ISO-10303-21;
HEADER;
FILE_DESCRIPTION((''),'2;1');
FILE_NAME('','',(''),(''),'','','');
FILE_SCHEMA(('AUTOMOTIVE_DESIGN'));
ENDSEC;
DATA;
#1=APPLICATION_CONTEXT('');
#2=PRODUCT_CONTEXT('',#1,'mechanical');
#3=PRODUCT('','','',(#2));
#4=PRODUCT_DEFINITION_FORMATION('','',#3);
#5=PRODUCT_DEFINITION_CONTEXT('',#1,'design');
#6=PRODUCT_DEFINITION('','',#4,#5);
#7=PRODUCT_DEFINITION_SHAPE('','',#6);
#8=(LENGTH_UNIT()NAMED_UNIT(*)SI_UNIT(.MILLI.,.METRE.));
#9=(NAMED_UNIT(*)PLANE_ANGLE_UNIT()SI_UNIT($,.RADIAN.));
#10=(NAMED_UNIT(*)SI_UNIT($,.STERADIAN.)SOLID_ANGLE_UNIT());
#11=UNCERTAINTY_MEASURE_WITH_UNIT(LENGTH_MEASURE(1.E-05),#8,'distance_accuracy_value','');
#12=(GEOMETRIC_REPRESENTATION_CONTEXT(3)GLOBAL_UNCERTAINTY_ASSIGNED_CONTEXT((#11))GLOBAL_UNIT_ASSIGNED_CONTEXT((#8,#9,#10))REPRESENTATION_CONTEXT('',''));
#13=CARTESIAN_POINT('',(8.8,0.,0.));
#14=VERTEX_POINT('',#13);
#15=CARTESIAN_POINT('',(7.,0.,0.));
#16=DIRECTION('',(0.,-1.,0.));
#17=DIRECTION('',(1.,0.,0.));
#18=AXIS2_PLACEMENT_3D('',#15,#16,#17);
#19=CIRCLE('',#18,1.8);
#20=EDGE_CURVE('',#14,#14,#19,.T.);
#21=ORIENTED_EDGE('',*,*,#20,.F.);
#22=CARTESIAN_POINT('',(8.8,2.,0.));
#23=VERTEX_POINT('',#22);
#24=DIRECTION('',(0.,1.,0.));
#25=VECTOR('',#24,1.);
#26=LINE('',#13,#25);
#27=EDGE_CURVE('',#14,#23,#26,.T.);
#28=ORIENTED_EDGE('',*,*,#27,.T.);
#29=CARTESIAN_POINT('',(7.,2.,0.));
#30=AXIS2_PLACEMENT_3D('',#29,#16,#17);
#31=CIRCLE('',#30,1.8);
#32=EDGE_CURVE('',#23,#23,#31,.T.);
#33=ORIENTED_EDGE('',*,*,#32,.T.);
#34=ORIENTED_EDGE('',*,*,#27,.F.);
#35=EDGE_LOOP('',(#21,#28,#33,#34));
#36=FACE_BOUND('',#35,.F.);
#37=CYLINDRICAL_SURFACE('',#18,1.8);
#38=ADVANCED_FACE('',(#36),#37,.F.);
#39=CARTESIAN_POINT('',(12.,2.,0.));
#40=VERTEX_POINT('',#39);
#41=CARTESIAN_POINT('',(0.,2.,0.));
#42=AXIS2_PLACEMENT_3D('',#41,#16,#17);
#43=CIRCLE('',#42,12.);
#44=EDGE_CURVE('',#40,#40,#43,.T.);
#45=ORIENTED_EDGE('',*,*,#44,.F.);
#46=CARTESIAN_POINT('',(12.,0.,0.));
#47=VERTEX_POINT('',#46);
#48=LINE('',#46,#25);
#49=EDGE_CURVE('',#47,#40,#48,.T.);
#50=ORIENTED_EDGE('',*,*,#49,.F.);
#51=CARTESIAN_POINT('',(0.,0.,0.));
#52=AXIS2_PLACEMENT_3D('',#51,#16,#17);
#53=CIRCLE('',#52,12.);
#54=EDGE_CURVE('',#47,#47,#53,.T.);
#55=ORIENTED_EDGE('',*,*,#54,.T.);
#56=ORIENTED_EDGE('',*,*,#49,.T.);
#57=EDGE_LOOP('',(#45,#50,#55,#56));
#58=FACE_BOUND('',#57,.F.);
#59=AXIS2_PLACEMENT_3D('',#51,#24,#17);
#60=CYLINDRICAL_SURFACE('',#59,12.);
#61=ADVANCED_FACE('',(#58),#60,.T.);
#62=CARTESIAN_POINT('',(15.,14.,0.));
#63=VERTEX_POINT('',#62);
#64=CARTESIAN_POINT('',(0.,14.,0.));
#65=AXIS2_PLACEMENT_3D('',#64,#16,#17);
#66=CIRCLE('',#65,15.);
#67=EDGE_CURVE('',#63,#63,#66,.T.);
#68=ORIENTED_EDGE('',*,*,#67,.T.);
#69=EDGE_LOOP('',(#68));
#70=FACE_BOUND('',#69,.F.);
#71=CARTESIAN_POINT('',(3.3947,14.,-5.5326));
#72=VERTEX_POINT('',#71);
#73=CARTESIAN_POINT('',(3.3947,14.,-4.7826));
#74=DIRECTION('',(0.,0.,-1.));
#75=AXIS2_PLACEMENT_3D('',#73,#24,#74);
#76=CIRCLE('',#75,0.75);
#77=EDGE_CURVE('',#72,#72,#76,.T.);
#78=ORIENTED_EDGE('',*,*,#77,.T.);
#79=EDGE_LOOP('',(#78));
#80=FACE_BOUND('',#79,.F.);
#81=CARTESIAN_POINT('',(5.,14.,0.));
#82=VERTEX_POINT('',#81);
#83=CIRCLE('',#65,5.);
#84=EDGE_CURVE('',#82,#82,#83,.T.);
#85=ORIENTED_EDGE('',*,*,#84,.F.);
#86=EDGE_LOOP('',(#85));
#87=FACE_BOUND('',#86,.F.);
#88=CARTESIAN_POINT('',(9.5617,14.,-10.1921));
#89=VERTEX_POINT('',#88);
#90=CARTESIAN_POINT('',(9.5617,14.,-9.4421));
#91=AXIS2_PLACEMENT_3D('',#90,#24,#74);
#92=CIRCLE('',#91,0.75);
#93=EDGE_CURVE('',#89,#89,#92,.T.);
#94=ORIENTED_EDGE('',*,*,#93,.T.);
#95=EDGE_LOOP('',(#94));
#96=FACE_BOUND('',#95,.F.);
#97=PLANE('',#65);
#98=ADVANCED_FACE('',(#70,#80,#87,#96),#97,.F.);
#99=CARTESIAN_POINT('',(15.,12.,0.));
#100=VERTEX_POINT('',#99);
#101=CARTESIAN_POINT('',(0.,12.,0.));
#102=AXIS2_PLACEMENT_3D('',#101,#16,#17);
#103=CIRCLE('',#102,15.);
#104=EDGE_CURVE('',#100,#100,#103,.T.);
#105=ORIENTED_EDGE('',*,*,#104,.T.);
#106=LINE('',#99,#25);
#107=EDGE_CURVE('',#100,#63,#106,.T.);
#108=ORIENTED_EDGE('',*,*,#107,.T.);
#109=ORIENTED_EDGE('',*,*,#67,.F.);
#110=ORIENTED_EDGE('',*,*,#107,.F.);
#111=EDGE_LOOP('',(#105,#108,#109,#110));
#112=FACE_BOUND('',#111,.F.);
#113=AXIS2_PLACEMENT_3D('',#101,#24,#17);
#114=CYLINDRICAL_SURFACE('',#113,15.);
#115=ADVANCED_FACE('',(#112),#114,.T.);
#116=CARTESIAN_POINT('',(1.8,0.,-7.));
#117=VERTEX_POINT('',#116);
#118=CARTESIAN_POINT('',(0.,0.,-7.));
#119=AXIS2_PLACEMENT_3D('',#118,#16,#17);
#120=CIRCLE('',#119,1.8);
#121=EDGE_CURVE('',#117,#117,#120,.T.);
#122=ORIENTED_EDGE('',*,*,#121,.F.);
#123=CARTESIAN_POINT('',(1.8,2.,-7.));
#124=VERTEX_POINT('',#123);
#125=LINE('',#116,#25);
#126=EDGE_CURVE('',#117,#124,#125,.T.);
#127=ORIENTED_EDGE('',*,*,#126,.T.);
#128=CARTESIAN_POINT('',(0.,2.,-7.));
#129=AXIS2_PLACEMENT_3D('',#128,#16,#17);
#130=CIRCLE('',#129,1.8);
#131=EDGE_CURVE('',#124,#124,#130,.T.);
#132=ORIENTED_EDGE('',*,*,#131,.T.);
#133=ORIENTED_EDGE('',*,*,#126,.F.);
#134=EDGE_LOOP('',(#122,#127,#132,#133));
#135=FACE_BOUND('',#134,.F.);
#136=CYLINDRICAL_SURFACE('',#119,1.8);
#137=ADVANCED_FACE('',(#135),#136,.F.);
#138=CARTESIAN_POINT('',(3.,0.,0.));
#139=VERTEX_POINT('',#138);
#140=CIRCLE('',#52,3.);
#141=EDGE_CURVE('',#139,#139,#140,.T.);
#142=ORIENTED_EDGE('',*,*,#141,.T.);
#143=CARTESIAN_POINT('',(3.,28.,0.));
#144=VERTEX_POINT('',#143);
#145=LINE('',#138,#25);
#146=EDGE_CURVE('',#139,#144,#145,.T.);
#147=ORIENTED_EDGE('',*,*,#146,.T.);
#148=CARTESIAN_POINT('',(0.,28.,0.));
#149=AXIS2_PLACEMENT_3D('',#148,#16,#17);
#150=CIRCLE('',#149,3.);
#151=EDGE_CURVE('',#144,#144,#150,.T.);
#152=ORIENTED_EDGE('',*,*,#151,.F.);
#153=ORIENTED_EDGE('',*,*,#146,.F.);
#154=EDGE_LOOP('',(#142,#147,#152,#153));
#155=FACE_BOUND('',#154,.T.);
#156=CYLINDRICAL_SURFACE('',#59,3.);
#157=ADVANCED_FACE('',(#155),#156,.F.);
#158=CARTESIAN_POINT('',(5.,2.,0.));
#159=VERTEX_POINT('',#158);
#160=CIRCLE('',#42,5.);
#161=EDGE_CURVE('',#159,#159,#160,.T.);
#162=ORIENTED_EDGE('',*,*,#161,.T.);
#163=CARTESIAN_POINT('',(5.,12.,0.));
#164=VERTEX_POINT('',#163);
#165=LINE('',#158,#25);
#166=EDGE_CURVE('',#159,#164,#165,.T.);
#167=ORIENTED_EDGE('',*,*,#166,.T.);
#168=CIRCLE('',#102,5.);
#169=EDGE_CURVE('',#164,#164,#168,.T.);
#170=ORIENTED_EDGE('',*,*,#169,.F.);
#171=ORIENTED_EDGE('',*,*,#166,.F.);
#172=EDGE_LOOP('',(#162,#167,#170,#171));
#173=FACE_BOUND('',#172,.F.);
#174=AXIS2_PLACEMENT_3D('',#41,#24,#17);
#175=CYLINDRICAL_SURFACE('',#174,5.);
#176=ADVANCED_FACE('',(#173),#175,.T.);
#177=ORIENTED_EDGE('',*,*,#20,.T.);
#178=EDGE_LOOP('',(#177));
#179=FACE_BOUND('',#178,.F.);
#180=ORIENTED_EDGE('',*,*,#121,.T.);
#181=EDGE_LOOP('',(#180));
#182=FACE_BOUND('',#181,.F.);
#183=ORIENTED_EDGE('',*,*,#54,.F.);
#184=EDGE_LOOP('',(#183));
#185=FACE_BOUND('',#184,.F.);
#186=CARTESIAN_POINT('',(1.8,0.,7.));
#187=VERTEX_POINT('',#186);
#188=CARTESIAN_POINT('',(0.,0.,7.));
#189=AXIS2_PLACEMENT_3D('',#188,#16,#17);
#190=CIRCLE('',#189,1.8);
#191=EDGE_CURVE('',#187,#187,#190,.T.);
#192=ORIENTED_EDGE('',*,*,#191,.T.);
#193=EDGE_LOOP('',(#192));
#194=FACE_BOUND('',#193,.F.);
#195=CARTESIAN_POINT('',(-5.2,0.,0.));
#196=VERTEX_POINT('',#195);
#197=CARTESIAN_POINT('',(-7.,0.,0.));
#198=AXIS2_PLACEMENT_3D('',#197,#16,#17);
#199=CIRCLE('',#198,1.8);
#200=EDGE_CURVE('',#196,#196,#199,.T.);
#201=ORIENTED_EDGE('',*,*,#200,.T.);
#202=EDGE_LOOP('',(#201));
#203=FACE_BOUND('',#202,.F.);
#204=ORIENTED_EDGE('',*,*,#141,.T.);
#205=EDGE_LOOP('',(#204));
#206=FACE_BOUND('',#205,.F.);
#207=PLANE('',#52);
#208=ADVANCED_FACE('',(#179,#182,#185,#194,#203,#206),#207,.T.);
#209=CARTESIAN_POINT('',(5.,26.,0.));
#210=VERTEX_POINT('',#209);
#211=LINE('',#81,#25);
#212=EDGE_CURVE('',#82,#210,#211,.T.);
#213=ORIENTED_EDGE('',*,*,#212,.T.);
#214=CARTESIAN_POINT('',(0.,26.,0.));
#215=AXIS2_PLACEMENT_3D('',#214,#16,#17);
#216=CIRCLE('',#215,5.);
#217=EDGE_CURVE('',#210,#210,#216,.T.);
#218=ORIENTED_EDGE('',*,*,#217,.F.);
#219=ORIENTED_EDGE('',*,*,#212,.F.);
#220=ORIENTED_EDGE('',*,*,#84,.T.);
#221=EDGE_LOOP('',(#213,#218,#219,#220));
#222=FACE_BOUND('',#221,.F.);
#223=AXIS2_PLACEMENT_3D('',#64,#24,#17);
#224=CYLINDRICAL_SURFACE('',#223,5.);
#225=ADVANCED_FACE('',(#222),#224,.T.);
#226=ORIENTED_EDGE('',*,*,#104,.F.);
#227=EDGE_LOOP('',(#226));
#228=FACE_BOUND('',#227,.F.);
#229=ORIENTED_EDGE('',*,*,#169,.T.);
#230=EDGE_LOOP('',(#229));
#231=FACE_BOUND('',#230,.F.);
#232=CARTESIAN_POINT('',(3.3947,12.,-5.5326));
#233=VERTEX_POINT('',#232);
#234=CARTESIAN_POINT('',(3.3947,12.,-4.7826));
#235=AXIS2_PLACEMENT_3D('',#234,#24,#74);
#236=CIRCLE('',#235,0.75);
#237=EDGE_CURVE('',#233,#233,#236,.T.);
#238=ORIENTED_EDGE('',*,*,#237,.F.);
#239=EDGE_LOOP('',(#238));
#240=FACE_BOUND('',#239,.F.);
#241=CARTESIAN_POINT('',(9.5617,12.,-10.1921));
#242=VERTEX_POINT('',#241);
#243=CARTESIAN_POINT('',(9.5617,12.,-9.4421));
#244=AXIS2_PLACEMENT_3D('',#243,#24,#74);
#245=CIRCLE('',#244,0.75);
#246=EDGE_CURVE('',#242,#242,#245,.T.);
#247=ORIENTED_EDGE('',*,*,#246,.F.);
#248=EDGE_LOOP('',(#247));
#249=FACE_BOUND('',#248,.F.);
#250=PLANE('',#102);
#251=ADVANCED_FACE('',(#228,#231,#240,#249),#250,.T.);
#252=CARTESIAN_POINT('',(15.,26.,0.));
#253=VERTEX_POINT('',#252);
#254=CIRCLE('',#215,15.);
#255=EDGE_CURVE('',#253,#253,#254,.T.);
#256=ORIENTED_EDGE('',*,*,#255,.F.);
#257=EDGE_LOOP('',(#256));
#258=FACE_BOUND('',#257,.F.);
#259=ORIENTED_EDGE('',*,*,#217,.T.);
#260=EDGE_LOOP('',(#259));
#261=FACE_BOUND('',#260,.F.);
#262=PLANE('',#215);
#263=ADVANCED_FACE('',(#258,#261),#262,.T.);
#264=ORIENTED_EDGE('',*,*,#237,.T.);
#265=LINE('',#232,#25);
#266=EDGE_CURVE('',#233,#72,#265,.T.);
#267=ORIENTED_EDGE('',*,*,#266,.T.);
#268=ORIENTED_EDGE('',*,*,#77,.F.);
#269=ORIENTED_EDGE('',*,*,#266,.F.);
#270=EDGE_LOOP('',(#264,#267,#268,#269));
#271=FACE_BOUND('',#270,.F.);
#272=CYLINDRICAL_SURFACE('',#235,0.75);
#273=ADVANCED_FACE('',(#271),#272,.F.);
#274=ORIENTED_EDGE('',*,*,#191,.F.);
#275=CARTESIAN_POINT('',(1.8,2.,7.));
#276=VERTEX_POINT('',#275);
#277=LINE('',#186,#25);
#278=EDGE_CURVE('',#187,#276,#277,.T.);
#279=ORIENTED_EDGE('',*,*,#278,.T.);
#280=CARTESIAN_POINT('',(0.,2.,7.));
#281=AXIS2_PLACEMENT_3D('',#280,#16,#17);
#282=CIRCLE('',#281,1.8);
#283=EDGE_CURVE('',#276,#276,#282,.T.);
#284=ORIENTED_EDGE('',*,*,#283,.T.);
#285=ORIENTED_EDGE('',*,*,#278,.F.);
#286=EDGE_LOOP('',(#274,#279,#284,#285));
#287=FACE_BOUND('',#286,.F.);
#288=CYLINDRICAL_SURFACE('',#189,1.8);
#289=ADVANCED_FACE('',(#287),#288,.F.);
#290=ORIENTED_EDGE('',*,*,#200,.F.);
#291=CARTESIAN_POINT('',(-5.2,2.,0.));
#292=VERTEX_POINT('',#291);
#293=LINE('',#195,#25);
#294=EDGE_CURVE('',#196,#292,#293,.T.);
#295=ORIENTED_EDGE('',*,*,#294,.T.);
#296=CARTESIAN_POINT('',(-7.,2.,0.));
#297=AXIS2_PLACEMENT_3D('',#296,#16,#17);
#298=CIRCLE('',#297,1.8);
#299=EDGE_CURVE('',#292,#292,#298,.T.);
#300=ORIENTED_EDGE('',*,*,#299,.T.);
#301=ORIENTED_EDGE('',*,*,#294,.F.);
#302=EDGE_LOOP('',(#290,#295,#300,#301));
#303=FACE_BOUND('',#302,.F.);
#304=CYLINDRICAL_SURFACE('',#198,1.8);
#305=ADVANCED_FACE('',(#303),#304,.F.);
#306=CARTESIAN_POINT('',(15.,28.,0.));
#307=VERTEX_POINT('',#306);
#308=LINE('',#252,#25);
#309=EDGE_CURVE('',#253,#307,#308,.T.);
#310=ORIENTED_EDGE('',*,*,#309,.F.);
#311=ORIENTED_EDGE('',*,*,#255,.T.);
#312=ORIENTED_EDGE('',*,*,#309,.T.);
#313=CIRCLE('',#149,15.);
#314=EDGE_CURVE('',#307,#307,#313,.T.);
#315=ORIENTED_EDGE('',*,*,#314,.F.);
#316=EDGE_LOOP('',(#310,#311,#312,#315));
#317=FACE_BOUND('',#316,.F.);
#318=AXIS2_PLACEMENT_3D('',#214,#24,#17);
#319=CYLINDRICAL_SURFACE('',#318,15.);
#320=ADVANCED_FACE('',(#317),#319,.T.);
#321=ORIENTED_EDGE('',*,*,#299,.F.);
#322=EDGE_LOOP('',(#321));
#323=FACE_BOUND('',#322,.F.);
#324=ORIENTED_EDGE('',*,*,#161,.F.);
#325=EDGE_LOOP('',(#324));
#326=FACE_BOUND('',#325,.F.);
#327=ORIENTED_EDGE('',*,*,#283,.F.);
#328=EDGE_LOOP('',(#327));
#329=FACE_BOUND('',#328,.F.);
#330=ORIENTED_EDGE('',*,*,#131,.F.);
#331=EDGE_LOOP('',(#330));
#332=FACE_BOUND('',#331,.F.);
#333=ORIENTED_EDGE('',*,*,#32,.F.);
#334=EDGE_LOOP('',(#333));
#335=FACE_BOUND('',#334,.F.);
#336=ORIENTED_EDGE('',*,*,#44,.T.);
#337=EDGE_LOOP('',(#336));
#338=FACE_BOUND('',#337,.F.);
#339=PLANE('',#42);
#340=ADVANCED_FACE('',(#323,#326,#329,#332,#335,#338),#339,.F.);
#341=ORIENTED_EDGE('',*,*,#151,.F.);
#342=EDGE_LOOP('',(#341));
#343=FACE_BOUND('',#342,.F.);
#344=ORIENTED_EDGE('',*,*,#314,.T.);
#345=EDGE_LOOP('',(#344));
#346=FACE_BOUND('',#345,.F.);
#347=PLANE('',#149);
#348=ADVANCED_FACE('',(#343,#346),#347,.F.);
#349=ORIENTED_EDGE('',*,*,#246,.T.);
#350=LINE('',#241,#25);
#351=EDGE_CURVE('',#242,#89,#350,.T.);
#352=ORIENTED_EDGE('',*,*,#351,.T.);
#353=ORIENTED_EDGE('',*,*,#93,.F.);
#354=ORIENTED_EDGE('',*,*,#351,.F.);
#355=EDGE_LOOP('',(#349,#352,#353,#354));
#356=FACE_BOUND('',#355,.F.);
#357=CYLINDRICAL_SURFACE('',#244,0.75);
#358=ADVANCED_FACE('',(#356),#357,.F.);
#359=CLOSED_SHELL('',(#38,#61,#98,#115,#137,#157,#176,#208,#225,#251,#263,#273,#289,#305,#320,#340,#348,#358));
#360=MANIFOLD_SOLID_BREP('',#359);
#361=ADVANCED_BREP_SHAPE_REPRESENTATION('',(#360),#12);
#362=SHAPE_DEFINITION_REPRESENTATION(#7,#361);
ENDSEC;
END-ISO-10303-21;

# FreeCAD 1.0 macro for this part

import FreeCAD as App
import Part
import Sketcher
from FreeCAD import Vector

doc = App.newDocument("Part")
body = doc.addObject("PartDesign::Body", "Body")

# Sketch on XY plane
sketch1 = body.newObject("Sketcher::SketchObject", "Sketch")
sketch1.AttachmentSupport = (doc.getObject("XY_Plane"), [""])
sketch1.MapMode = "FlatFace"
sketch1.addGeometry([
    Part.LineSegment(Vector(3, 28, 0), Vector(3, 0, 0)),  # 0
    Part.LineSegment(Vector(3, 0, 0), Vector(12, 0, 0)),  # 1
    Part.LineSegment(Vector(12, 0, 0), Vector(12, 2, 0)),  # 2
    Part.LineSegment(Vector(12, 2, 0), Vector(5, 2, 0)),  # 3
    Part.LineSegment(Vector(5, 2, 0), Vector(5, 12, 0)),  # 4
    Part.LineSegment(Vector(5, 12, 0), Vector(15, 12, 0)),  # 5
    Part.LineSegment(Vector(15, 12, 0), Vector(15, 14, 0)),  # 6
    Part.LineSegment(Vector(15, 14, 0), Vector(5, 14, 0)),  # 7
    Part.LineSegment(Vector(5, 14, 0), Vector(5, 26, 0)),  # 8
    Part.LineSegment(Vector(5, 26, 0), Vector(15, 26, 0)),  # 9
    Part.LineSegment(Vector(15, 26, 0), Vector(15, 28, 0)),  # 10
    Part.LineSegment(Vector(15, 28, 0), Vector(3, 28, 0)),  # 11
], False)
sketch1.addConstraint([
    Sketcher.Constraint("Coincident", 0, 2, 1, 1),
    Sketcher.Constraint("Coincident", 1, 2, 2, 1),
    Sketcher.Constraint("Coincident", 2, 2, 3, 1),
    Sketcher.Constraint("Coincident", 3, 2, 4, 1),
    Sketcher.Constraint("Coincident", 4, 2, 5, 1),
    Sketcher.Constraint("Coincident", 5, 2, 6, 1),
    Sketcher.Constraint("Coincident", 6, 2, 7, 1),
    Sketcher.Constraint("Coincident", 7, 2, 8, 1),
    Sketcher.Constraint("Coincident", 8, 2, 9, 1),
    Sketcher.Constraint("Coincident", 9, 2, 10, 1),
    Sketcher.Constraint("Coincident", 10, 2, 11, 1),
    Sketcher.Constraint("Coincident", 11, 2, 0, 1),
    Sketcher.Constraint("Vertical", 0),
    Sketcher.Constraint("Horizontal", 1),
    Sketcher.Constraint("Vertical", 2),
    Sketcher.Constraint("Horizontal", 3),
    Sketcher.Constraint("Vertical", 4),
    Sketcher.Constraint("Horizontal", 5),
    Sketcher.Constraint("Vertical", 6),
    Sketcher.Constraint("Horizontal", 7),
    Sketcher.Constraint("Vertical", 8),
    Sketcher.Constraint("Horizontal", 9),
    Sketcher.Constraint("Vertical", 10),
    Sketcher.Constraint("Horizontal", 11),
    Sketcher.Constraint("PointOnObject", 0, 2, -1),
    Sketcher.Constraint("Vertical", 4, 2, 7, 2),
    Sketcher.Constraint("Vertical", 6, 2, 9, 2),
    Sketcher.Constraint("Equal", 9, 4),
    Sketcher.Constraint("Equal", 2, 6),
    Sketcher.Constraint("Equal", 11, 8),
    Sketcher.Constraint("Equal", 6, 10),
    Sketcher.Constraint("DistanceX", 1, 1, 1, 2, 9.0),
    Sketcher.Constraint("DistanceX", 3, 2, 3, 1, 7.0),
    Sketcher.Constraint("DistanceX", 5, 1, 5, 2, 10.0),
    Sketcher.Constraint("DistanceY", 0, 2, 0, 1, 28.0),
    Sketcher.Constraint("DistanceX", -1, 1, 1, 2, 12.0),
])
revolution = body.newObject("PartDesign::Revolution", "Revolution")
revolution.Profile = sketch1
revolution.ReferenceAxis = (sketch1, ["V_Axis"])
revolution.Angle = 360

# Sketch on XZ plane
sketch2 = body.newObject("Sketcher::SketchObject", "Sketch001")
sketch2.AttachmentSupport = (doc.getObject("XZ_Plane"), [""])
sketch2.MapMode = "FlatFace"
sketch2.addGeometry([
    Part.Circle(Vector(0, -7, 0), Vector(0, 0, 1), 1.8),
    Part.Circle(Vector(7, 0, 0), Vector(0, 0, 1), 1.8),
    Part.Circle(Vector(0, 7, 0), Vector(0, 0, 1), 1.8),
    Part.Circle(Vector(-7, 0, 0), Vector(0, 0, 1), 1.8),
], False)
sketch2.addConstraint([
    Sketcher.Constraint("Equal", 0, 1),
    Sketcher.Constraint("Equal", 1, 2),
    Sketcher.Constraint("Equal", 2, 3),
    Sketcher.Constraint("Symmetric", 0, 3, 2, 3, -1, 1),
    Sketcher.Constraint("Symmetric", 1, 3, 3, 3, -1, 1),
    Sketcher.Constraint("PointOnObject", 0, 3, -2),
    Sketcher.Constraint("PointOnObject", 1, 3, -1),
    Sketcher.Constraint("Diameter", 0, 3.6),
    Sketcher.Constraint("DistanceY", 0, 3, -1, 1, 7.0),
    Sketcher.Constraint("DistanceX", -1, 1, 1, 3, 7.0),
])
pocket1 = body.newObject("PartDesign::Pocket", "Pocket")
pocket1.Profile = sketch2
pocket1.Length = 2

# Sketch on XZ plane
sketch3 = body.newObject("Sketcher::SketchObject", "Sketch002")
sketch3.AttachmentSupport = (doc.getObject("XZ_Plane"), [""])
sketch3.MapMode = "FlatFace"
sketch3.AttachmentOffset = App.Placement(Vector(0, 0, -12), App.Rotation())
sketch3.addGeometry(Part.Circle(Vector(3.4, -4.8, 0), Vector(0, 0, 1), 0.8), False)
sketch3.addConstraint([
    Sketcher.Constraint("Diameter", 0, 1.5),
    Sketcher.Constraint("DistanceX", -1, 1, 0, 3, 3.3947),
    Sketcher.Constraint("DistanceY", 0, 3, -1, 1, 4.7826),
])
doc.recompute()
hole = body.newObject("PartDesign::Hole", "Hole")
hole.Profile = sketch3
hole.ThreadType = "None"
hole.Diameter = 1.5
hole.DepthType = "Dimension"
hole.Depth = 2
hole.DrillPoint = "Flat"

# Sketch on XZ plane
sketch4 = body.newObject("Sketcher::SketchObject", "Sketch003")
sketch4.AttachmentSupport = (doc.getObject("XZ_Plane"), [""])
sketch4.MapMode = "FlatFace"
sketch4.AttachmentOffset = App.Placement(Vector(0, 0, -12), App.Rotation())
sketch4.addGeometry(Part.Circle(Vector(9.6, -9.4, 0), Vector(0, 0, 1), 0.8), False)
sketch4.addConstraint([
    Sketcher.Constraint("Diameter", 0, 1.5),
    Sketcher.Constraint("DistanceY", 0, 3, -1, 1, 9.442),
    Sketcher.Constraint("DistanceX", -1, 1, 0, 3, 9.5617),
])
doc.recompute()
hole2 = body.newObject("PartDesign::Hole", "Hole001")
hole2.Profile = sketch4
hole2.ThreadType = "None"
hole2.Diameter = 1.5
hole2.DepthType = "Dimension"
hole2.Depth = 2
hole2.DrillPoint = "Flat"

doc.recompute()
